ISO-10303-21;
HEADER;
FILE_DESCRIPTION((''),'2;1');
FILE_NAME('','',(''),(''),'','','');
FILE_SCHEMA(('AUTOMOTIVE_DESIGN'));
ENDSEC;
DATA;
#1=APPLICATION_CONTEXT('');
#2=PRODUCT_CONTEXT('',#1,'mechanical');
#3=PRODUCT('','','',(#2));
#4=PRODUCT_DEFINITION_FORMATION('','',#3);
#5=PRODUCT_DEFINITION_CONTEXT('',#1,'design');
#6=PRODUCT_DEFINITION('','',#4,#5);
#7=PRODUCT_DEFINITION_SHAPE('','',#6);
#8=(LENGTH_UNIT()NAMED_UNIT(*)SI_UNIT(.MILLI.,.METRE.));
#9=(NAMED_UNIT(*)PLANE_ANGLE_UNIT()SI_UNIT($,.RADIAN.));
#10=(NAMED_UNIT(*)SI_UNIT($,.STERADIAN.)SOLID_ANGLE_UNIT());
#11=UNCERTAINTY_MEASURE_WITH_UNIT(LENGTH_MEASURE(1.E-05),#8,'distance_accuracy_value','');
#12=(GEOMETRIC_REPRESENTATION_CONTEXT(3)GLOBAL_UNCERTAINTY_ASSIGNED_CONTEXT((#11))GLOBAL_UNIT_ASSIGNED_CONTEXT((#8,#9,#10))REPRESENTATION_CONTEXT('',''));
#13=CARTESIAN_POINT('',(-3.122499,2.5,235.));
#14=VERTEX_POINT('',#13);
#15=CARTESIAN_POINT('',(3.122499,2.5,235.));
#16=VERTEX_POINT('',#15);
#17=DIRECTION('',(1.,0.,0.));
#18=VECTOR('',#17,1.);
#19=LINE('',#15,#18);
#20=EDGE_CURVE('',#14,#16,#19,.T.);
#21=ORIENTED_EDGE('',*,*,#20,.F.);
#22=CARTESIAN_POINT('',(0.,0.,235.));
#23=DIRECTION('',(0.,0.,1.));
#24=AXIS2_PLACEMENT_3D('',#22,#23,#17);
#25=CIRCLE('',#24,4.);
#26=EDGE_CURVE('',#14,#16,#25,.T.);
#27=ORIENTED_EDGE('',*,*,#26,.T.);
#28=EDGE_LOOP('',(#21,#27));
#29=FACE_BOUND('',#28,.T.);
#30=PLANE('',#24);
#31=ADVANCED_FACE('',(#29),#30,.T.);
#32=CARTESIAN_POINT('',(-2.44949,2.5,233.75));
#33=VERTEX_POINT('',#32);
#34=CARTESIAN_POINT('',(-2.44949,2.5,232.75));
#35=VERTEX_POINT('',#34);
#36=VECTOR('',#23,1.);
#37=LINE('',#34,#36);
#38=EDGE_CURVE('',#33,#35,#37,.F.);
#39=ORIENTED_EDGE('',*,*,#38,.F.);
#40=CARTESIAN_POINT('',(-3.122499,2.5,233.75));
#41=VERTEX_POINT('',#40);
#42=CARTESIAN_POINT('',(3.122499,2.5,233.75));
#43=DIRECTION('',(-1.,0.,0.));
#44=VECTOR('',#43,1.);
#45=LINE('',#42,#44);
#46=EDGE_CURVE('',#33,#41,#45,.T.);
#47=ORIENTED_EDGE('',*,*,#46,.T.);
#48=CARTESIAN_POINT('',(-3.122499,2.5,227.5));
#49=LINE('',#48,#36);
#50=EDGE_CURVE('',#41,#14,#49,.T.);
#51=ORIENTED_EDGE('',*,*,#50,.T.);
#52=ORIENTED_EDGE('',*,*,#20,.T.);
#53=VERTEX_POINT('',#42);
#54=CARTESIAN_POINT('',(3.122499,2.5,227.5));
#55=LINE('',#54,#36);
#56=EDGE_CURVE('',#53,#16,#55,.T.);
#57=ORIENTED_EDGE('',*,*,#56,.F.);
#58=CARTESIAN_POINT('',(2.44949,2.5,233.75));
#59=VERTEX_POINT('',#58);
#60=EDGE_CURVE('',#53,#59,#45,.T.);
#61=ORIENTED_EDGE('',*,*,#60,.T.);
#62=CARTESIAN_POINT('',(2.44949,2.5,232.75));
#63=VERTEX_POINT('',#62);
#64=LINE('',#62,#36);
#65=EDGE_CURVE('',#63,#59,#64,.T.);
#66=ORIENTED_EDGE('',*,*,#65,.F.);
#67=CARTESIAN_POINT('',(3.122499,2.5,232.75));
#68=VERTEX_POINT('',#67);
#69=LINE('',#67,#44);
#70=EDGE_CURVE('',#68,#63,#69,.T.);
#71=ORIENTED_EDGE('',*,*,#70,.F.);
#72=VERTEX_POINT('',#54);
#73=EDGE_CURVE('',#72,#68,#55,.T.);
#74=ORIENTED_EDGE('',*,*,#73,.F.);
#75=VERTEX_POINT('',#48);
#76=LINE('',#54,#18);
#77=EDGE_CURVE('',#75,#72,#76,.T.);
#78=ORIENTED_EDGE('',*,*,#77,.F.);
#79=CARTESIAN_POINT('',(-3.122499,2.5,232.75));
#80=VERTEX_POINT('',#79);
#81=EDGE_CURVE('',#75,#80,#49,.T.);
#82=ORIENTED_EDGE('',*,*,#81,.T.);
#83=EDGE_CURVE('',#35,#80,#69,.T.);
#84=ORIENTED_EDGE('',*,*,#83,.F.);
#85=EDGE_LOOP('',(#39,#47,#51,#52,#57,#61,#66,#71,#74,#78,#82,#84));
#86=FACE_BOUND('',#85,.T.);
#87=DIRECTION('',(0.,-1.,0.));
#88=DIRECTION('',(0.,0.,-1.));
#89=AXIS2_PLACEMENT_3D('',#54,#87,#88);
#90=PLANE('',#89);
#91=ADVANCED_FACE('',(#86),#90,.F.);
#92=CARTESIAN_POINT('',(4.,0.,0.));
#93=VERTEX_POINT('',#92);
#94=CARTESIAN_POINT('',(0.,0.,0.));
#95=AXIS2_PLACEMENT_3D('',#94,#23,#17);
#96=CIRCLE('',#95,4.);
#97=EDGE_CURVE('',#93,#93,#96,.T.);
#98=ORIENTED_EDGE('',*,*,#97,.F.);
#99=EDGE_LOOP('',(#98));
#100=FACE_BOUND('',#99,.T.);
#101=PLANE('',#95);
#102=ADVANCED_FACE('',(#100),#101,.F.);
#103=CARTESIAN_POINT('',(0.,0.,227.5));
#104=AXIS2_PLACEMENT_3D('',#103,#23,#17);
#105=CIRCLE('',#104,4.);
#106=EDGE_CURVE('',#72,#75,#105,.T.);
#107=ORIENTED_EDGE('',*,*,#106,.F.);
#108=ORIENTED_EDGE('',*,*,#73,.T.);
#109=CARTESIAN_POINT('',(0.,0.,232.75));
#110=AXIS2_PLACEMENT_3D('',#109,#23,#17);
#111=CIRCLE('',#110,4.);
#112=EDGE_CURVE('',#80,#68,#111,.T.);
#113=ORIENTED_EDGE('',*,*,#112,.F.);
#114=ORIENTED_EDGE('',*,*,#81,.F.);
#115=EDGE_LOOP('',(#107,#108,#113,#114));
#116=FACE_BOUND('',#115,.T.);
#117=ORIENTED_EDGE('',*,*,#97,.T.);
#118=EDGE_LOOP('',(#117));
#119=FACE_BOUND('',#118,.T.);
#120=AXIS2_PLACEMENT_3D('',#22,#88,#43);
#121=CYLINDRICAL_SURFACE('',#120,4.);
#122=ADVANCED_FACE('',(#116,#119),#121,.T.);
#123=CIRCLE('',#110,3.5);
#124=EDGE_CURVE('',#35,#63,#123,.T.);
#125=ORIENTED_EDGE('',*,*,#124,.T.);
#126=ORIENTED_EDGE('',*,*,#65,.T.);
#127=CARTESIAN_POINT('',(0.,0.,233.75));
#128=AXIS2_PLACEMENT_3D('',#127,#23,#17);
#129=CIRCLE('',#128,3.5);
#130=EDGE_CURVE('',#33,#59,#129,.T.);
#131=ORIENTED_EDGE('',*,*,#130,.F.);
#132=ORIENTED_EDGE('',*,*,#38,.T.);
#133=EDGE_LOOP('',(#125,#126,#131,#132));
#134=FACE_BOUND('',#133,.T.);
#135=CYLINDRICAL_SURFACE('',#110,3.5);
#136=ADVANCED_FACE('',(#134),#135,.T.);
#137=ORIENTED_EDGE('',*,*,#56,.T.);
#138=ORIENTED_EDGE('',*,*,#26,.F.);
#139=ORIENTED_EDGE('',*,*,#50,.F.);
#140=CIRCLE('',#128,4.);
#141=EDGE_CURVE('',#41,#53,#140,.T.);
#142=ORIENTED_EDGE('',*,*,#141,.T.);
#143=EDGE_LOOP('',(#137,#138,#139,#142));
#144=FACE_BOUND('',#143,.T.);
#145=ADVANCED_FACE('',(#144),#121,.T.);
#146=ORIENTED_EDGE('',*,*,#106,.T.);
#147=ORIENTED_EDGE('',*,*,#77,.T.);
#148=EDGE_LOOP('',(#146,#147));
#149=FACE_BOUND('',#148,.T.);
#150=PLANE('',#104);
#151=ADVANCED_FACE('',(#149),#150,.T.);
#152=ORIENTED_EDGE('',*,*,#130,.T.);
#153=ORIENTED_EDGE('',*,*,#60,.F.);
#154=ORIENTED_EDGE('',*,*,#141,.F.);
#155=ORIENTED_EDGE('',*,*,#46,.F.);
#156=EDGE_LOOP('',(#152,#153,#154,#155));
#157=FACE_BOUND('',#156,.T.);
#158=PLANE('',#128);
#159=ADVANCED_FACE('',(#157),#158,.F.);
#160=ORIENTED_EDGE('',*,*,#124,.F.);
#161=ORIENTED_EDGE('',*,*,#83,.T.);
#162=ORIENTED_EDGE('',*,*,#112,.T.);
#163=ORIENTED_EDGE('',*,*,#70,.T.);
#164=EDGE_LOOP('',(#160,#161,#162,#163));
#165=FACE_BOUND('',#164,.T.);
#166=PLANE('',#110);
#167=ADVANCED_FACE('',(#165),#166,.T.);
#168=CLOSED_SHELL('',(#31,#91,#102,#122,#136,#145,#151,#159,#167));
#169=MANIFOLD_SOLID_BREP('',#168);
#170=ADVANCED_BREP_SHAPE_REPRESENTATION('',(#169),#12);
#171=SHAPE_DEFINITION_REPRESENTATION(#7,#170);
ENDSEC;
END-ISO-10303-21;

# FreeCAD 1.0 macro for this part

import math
import FreeCAD as App
import Part
import Sketcher

V = App.Vector

doc = App.newDocument("Part")
params = doc.addObject("Spreadsheet::Sheet", "Params")
for row, (alias, value) in enumerate([
    ("sketch1_diameter", "8 mm"),
    ("pad1_length", "235 mm"),
    ("sketch2_radius", "4 mm"),
    ("pocket1_length", "7.5 mm"),
    ("sketch3_diameter", "8 mm"),
    ("sketch3_diameter2", "7 mm"),
    ("pocket2_length", "1 mm"),
], start=1):
    params.set(f"A{row}", alias)
    params.set(f"B{row}", "=" + value)
    params.setAlias(f"B{row}", alias)

body = doc.addObject("PartDesign::Body", "Body")

sketch1 = doc.addObject("Sketcher::SketchObject", "Sketch")
body.addObject(sketch1)
sketch1.AttachmentSupport = (doc.XY_Plane, [""])
sketch1.MapMode = "FlatFace"
sketch1.addGeometry(Part.Circle(V(0, 0, 0), V(0, 0, 1), 4), False)
sketch1.addConstraint([
    Sketcher.Constraint("Coincident", 0, 3, -1, 1),
    Sketcher.Constraint("Diameter", 0, 8.0),
])
sketch1.setExpression("Constraints[1]", "Params.sketch1_diameter")
pad1 = doc.addObject("PartDesign::Pad", "Pad")
body.addObject(pad1)
pad1.Profile = sketch1
pad1.setExpression("Length", "Params.pad1_length")

sketch2 = doc.addObject("Sketcher::SketchObject", "Sketch001")
body.addObject(sketch2)
sketch2.AttachmentSupport = (doc.XY_Plane, [""])
sketch2.MapMode = "FlatFace"
sketch2.AttachmentOffset = App.Placement(V(0, 0, 235), App.Rotation())
sketch2.addGeometry([
    Part.LineSegment(V(-3.1, 2.5, 0), V(3.1, 2.5, 0)),
    Part.ArcOfCircle(Part.Circle(V(0, 0, 0), V(0, 0, 1), 4), math.radians(39), math.radians(141)),
], False)
sketch2.addConstraint([
    Sketcher.Constraint("Coincident", 0, 1, 1, 2),
    Sketcher.Constraint("Coincident", 1, 1, 0, 2),
    Sketcher.Constraint("Horizontal", 0),
    Sketcher.Constraint("Coincident", 1, 3, -1, 1),
    Sketcher.Constraint("Radius", 1, 4.0),
    Sketcher.Constraint("DistanceY", -1, 1, 0, 1, 2.5),
])
sketch2.setExpression("Constraints[4]", "Params.sketch2_radius")
pocket1 = doc.addObject("PartDesign::Pocket", "Pocket")
body.addObject(pocket1)
pocket1.Profile = sketch2
pocket1.setExpression("Length", "Params.pocket1_length")

sketch3 = doc.addObject("Sketcher::SketchObject", "Sketch002")
body.addObject(sketch3)
sketch3.AttachmentSupport = (doc.XY_Plane, [""])
sketch3.MapMode = "FlatFace"
sketch3.AttachmentOffset = App.Placement(V(0, 0, 233.75), App.Rotation())
sketch3.addGeometry([
    Part.Circle(V(0, 0, 0), V(0, 0, 1), 4),
    Part.Circle(V(0, 0, 0), V(0, 0, 1), 3.5),
], False)
sketch3.addConstraint([
    Sketcher.Constraint("Coincident", 0, 3, -1, 1),
    Sketcher.Constraint("Coincident", 1, 3, -1, 1),
    Sketcher.Constraint("Diameter", 0, 8.0),
    Sketcher.Constraint("Diameter", 1, 7.0),
])
sketch3.setExpression("Constraints[2]", "Params.sketch3_diameter")
sketch3.setExpression("Constraints[3]", "Params.sketch3_diameter2")
pocket2 = doc.addObject("PartDesign::Pocket", "Pocket001")
body.addObject(pocket2)
pocket2.Profile = sketch3
pocket2.setExpression("Length", "Params.pocket2_length")

doc.recompute()
